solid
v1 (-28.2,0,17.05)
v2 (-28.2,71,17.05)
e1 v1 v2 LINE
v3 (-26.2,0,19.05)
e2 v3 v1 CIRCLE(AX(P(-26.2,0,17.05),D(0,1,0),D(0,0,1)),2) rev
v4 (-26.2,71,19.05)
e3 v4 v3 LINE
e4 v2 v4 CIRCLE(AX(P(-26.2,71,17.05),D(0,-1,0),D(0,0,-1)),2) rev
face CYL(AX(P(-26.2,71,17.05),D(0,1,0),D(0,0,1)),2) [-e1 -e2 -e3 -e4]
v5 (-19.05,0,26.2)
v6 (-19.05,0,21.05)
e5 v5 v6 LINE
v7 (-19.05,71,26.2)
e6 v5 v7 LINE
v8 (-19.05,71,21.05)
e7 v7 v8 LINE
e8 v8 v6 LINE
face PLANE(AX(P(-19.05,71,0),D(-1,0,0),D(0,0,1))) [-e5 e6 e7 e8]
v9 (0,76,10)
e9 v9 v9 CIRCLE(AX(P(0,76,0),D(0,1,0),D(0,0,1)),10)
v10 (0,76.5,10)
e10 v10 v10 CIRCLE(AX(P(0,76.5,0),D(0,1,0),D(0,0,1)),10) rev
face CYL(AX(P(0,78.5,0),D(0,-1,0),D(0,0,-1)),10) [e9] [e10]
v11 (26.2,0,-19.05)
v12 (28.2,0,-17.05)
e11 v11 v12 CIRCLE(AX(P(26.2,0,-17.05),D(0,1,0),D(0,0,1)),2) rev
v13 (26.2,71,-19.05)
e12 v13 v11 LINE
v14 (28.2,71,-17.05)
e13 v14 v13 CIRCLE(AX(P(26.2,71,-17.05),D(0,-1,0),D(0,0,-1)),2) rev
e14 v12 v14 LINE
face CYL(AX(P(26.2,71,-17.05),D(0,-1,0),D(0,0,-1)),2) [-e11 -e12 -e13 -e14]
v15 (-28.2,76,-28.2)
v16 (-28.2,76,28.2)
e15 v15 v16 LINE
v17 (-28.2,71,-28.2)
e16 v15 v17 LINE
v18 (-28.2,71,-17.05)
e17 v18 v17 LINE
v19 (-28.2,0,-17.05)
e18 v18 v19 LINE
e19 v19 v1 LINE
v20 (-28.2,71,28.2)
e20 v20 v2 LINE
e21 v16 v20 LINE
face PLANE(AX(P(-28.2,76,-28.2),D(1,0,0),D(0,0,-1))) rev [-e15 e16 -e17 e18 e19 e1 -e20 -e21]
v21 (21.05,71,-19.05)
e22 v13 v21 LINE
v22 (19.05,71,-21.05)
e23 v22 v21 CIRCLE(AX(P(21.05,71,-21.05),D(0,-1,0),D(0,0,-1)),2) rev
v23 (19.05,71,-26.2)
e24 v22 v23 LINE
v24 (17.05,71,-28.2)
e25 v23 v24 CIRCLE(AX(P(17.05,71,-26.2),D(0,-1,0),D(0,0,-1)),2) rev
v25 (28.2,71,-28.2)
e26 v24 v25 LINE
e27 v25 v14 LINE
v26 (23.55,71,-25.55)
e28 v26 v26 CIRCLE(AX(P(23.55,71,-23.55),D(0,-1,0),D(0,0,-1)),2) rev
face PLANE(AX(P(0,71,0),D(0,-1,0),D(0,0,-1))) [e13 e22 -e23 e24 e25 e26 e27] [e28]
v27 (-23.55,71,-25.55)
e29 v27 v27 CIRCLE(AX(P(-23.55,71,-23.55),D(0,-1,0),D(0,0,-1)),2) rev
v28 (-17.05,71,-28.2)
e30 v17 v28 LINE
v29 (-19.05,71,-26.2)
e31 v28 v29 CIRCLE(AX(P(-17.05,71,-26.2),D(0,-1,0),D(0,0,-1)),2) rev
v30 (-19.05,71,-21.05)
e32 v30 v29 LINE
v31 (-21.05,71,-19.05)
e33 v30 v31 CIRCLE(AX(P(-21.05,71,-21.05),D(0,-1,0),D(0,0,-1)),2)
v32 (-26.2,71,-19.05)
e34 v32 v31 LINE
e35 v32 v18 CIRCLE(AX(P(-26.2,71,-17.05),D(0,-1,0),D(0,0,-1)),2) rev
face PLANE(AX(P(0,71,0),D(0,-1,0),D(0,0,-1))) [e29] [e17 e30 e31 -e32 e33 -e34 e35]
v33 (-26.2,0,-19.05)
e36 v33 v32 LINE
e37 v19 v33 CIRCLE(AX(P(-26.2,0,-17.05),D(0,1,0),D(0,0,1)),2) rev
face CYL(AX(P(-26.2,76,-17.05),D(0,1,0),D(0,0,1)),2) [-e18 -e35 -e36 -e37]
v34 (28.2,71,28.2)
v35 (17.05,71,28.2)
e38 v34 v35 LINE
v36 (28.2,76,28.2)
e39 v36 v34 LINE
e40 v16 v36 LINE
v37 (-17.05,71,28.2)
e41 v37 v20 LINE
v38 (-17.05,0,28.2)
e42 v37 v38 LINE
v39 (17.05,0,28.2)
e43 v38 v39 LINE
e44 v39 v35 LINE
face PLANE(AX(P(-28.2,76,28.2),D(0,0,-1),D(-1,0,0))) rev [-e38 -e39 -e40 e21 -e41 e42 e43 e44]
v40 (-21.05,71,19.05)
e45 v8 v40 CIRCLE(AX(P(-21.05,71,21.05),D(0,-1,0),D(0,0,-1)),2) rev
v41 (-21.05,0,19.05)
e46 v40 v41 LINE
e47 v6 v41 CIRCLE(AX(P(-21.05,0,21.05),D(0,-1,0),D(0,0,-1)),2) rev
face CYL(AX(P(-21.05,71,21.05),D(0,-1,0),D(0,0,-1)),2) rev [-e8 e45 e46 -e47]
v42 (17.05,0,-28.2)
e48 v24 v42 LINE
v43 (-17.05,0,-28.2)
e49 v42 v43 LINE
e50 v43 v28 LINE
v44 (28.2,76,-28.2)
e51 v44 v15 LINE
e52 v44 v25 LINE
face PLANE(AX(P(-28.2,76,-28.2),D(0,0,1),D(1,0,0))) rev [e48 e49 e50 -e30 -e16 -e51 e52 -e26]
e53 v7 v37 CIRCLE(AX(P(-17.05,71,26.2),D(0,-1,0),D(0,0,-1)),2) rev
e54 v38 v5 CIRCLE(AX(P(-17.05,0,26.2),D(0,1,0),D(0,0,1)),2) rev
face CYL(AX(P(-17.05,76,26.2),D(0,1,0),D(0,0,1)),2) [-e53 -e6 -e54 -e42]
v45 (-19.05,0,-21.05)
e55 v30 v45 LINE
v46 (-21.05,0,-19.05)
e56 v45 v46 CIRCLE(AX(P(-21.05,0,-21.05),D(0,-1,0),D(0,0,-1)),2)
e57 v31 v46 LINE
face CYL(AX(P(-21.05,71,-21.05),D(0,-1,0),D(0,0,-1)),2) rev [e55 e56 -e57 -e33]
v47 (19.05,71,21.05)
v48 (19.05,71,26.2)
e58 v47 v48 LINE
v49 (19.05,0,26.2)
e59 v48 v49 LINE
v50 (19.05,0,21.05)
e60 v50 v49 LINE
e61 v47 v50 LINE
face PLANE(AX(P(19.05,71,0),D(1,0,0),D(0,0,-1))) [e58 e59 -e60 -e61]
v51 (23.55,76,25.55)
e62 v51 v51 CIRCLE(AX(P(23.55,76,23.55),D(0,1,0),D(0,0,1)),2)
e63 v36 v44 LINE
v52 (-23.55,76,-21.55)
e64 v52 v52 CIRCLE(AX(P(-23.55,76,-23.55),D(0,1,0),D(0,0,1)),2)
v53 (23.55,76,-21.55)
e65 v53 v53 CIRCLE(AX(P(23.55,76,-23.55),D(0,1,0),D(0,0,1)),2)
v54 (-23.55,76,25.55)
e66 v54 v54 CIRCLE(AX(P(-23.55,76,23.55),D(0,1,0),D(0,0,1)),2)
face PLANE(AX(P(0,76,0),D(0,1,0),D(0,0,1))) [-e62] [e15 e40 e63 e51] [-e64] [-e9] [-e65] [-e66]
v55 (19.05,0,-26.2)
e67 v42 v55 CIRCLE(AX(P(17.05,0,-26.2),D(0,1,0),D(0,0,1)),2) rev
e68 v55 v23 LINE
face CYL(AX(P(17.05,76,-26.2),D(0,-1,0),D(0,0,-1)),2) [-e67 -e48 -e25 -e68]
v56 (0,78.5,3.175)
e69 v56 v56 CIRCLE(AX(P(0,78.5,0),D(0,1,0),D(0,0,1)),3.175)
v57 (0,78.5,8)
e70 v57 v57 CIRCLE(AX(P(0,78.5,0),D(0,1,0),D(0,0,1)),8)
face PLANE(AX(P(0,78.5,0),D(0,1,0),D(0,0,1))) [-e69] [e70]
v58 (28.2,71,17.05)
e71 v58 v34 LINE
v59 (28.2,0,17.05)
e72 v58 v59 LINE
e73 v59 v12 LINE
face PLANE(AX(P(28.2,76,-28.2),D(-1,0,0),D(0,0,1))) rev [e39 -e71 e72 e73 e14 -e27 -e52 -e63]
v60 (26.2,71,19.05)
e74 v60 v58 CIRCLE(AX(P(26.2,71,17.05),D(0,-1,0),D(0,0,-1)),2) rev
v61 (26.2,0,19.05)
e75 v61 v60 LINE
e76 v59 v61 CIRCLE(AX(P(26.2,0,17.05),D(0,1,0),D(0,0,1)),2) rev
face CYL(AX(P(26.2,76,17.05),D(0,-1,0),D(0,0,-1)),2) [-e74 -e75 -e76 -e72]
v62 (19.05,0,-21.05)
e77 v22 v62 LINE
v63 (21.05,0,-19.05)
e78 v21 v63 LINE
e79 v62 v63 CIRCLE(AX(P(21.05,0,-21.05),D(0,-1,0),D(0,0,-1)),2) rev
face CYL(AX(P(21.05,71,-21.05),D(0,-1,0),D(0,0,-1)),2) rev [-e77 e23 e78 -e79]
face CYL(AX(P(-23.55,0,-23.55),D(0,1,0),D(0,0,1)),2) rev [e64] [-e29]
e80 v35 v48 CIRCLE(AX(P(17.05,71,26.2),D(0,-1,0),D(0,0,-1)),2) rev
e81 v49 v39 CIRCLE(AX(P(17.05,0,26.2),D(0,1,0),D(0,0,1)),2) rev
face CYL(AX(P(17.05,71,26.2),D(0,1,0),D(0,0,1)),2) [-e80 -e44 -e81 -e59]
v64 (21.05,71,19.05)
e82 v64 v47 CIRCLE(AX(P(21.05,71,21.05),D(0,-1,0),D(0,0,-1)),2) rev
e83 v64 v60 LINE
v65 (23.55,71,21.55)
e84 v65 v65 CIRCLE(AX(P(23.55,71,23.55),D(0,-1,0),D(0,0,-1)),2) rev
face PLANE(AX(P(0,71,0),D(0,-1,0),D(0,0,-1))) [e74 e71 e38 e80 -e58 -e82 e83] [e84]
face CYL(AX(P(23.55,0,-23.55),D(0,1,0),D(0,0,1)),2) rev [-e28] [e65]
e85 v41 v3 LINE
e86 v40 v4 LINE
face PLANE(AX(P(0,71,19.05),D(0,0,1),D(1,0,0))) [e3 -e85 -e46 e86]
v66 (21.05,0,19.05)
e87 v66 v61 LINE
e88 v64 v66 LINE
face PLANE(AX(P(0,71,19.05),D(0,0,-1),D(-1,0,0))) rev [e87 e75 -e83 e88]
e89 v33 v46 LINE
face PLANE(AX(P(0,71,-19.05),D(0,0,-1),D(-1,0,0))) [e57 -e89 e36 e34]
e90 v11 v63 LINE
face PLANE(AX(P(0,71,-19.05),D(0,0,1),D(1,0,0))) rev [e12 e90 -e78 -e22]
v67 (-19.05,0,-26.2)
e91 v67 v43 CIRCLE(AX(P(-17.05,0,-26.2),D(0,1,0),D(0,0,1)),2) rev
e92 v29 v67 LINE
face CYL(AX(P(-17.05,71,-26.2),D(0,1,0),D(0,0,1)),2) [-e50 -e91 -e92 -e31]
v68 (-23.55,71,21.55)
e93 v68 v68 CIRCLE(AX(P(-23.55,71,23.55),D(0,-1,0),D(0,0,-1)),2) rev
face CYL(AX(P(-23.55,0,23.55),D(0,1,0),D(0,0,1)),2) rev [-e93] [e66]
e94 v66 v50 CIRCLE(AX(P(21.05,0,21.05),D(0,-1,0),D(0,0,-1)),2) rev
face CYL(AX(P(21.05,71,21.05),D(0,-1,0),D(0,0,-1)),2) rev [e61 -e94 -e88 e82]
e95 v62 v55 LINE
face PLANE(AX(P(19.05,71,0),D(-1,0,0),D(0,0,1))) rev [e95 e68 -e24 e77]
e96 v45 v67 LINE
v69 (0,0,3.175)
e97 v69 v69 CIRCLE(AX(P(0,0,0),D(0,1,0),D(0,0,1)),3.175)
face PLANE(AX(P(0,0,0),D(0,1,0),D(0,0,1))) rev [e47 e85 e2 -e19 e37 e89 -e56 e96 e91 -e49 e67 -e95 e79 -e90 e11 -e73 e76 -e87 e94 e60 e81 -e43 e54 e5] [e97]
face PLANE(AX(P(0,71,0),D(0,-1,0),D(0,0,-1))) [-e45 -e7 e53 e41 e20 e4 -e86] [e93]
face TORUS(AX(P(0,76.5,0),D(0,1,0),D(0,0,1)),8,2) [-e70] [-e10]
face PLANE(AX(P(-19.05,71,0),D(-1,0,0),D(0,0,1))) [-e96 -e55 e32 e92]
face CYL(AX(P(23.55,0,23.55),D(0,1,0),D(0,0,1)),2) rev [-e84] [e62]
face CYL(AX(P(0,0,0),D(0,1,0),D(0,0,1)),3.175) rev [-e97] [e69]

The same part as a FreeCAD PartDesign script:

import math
import FreeCAD as App
import Part
import Sketcher


def edges_at(feature, points):
    """Names of the edges that pass closest to the given points."""
    edges = feature.Shape.Edges
    near = lambda p: min(range(len(edges)), key=lambda i: edges[i].distToShape(Part.Vertex(*p))[0])
    return sorted({f"Edge{near(p) + 1}" for p in points})


def add_polygon(sketch, points):
    """Adds a closed chain of lines whose ends are joined by coincident constraints."""
    first, n = sketch.GeometryCount, len(points)
    for a, b in zip(points, points[1:] + points[:1]):
        sketch.addGeometry(Part.LineSegment(App.Vector(*a, 0), App.Vector(*b, 0)), False)
    for i in range(n):
        sketch.addConstraint(Sketcher.Constraint("Coincident", first + i, 2, first + (i + 1) % n, 1))

doc = App.newDocument("Part")
body = doc.addObject("PartDesign::Body", "Body")

sketch1 = body.newObject("Sketcher::SketchObject", "Sketch")
sketch1.AttachmentSupport = (doc.getObject("XZ_Plane"), [""])
sketch1.MapMode = "FlatFace"
add_polygon(sketch1, [(-28.2, -28.2), (-28.2, 28.2), (28.2, 28.2), (28.2, -28.2)])
sketch1.addConstraint(Sketcher.Constraint("Vertical", 0))
sketch1.addConstraint(Sketcher.Constraint("Horizontal", 1))
sketch1.addConstraint(Sketcher.Constraint("Vertical", 2))
sketch1.addConstraint(Sketcher.Constraint("Horizontal", 3))
sketch1.addConstraint(Sketcher.Constraint("Symmetric", 0, 2, 2, 2, -1, 1))
sketch1.addConstraint(Sketcher.Constraint("Equal", 3, 0))
sketch1.addConstraint(Sketcher.Constraint("DistanceX", 1, 1, 1, 2, 56.4))
pad1 = body.newObject("PartDesign::Pad", "Pad")
pad1.Profile = sketch1
pad1.Length = 76
pad1.Reversed = True

sketch2 = body.newObject("Sketcher::SketchObject", "Sketch001")
sketch2.AttachmentSupport = (doc.getObject("XZ_Plane"), [""])
sketch2.MapMode = "FlatFace"
sketch2.AttachmentOffset = App.Placement(App.Vector(0, 0, -76), App.Rotation())
sketch2.addGeometry(Part.ArcOfCircle(Part.Circle(App.Vector(-23.55, -23.55, 0), App.Vector(0, 0, 1), 2), math.radians(90), math.radians(360)), False)
sketch2.addGeometry(Part.ArcOfCircle(Part.Circle(App.Vector(-23.55, -23.55, 0), App.Vector(0, 0, 1), 2), math.radians(0), math.radians(90)), False)
sketch2.addGeometry(Part.ArcOfCircle(Part.Circle(App.Vector(23.55, -23.55, 0), App.Vector(0, 0, 1), 2), math.radians(180), math.radians(360)), False)
sketch2.addGeometry(Part.ArcOfCircle(Part.Circle(App.Vector(23.55, -23.55, 0), App.Vector(0, 0, 1), 2), math.radians(90), math.radians(180)), False)
sketch2.addGeometry(Part.ArcOfCircle(Part.Circle(App.Vector(23.55, -23.55, 0), App.Vector(0, 0, 1), 2), math.radians(0), math.radians(90)), False)
sketch2.addGeometry(Part.Circle(App.Vector(0, 0, 0), App.Vector(0, 0, 1), 3.175), False)
sketch2.addGeometry(Part.ArcOfCircle(Part.Circle(App.Vector(-23.55, 23.55, 0), App.Vector(0, 0, 1), 2), math.radians(-90), math.radians(0)), False)
sketch2.addGeometry(Part.ArcOfCircle(Part.Circle(App.Vector(-23.55, 23.55, 0), App.Vector(0, 0, 1), 2), math.radians(0), math.radians(270)), False)
sketch2.addGeometry(Part.ArcOfCircle(Part.Circle(App.Vector(23.55, 23.55, 0), App.Vector(0, 0, 1), 2), math.radians(-90), math.radians(0)), False)
sketch2.addGeometry(Part.ArcOfCircle(Part.Circle(App.Vector(23.55, 23.55, 0), App.Vector(0, 0, 1), 2), math.radians(-180), math.radians(-90)), False)
sketch2.addGeometry(Part.ArcOfCircle(Part.Circle(App.Vector(23.55, 23.55, 0), App.Vector(0, 0, 1), 2), math.radians(0), math.radians(180)), False)
sketch2.addConstraint(Sketcher.Constraint("Tangent", 0, 1, 1, 2))
sketch2.addConstraint(Sketcher.Constraint("Coincident", 1, 1, 0, 2))
sketch2.addConstraint(Sketcher.Constraint("Tangent", 2, 1, 3, 2))
sketch2.addConstraint(Sketcher.Constraint("Tangent", 3, 1, 4, 2))
sketch2.addConstraint(Sketcher.Constraint("Tangent", 4, 1, 2, 2))
sketch2.addConstraint(Sketcher.Constraint("Tangent", 6, 1, 7, 2))
sketch2.addConstraint(Sketcher.Constraint("Coincident", 7, 1, 6, 2))
sketch2.addConstraint(Sketcher.Constraint("Tangent", 8, 1, 9, 2))
sketch2.addConstraint(Sketcher.Constraint("Tangent", 9, 1, 10, 2))
sketch2.addConstraint(Sketcher.Constraint("Tangent", 10, 1, 8, 2))
sketch2.addConstraint(Sketcher.Constraint("Coincident", 5, 3, -1, 1))
sketch2.addConstraint(Sketcher.Constraint("Equal", 1, 2))
sketch2.addConstraint(Sketcher.Constraint("Equal", 4, 6))
sketch2.addConstraint(Sketcher.Constraint("Equal", 7, 8))
sketch2.addConstraint(Sketcher.Constraint("Symmetric", 2, 3, 6, 3, -1, 1))
sketch2.addConstraint(Sketcher.Constraint("Symmetric", 0, 3, 8, 3, -1, 1))
sketch2.addConstraint(Sketcher.Constraint("Symmetric", 0, 3, 2, 3, -2))
sketch2.addConstraint(Sketcher.Constraint("Horizontal", 4, 3, 1, 1))
sketch2.addConstraint(Sketcher.Constraint("Horizontal", 1, 1, 2, 1))
sketch2.addConstraint(Sketcher.Constraint("Horizontal", 2, 1, 4, 1))
sketch2.addConstraint(Sketcher.Constraint("Horizontal", 10, 3, 7, 1))
sketch2.addConstraint(Sketcher.Constraint("Horizontal", 7, 1, 9, 1))
sketch2.addConstraint(Sketcher.Constraint("Horizontal", 9, 1, 10, 1))
sketch2.addConstraint(Sketcher.Constraint("Vertical", 7, 3, 0, 1))
sketch2.addConstraint(Sketcher.Constraint("Vertical", 10, 3, 3, 1))
sketch2.addConstraint(Sketcher.Constraint("Vertical", 0, 1, 6, 1))
sketch2.addConstraint(Sketcher.Constraint("Vertical", 3, 1, 8, 1))
sketch2.addConstraint(Sketcher.Constraint("Radius", 0, 2.0))
sketch2.addConstraint(Sketcher.Constraint("Diameter", 5, 6.35))
sketch2.addConstraint(Sketcher.Constraint("DistanceX", 0, 3, 2, 3, 47.1))
sketch2.addConstraint(Sketcher.Constraint("DistanceY", 0, 3, 6, 3, 47.1))
pocket1 = body.newObject("PartDesign::Pocket", "Pocket")
pocket1.Profile = sketch2
pocket1.Length = 76
pocket1.Reversed = True

sketch3 = body.newObject("Sketcher::SketchObject", "Sketch002")
sketch3.AttachmentSupport = (doc.getObject("XZ_Plane"), [""])
sketch3.MapMode = "FlatFace"
sketch3.AttachmentOffset = App.Placement(App.Vector(0, 0, -71), App.Rotation())
sketch3.addGeometry(Part.LineSegment(App.Vector(-19.05, -28.2, 0), App.Vector(-19.05, -21.05, 0)), False)
sketch3.addGeometry(Part.ArcOfCircle(Part.Circle(App.Vector(-21.05, -21.05, 0), App.Vector(0, 0, 1), 2), math.radians(0), math.radians(90)), False)
sketch3.addGeometry(Part.LineSegment(App.Vector(-21.05, -19.05, 0), App.Vector(-28.2, -19.05, 0)), False)
sketch3.addGeometry(Part.LineSegment(App.Vector(-28.2, -19.05, 0), App.Vector(-28.2, -28.2, 0)), False)
sketch3.addGeometry(Part.LineSegment(App.Vector(-28.2, -28.2, 0), App.Vector(-19.05, -28.2, 0)), False)
sketch3.addGeometry(Part.Circle(App.Vector(-23.55, -23.55, 0), App.Vector(0, 0, 1), 2), False)
sketch3.addGeometry(Part.LineSegment(App.Vector(19.05, -21.05, 0), App.Vector(19.05, -28.2, 0)), False)
sketch3.addGeometry(Part.LineSegment(App.Vector(19.05, -28.2, 0), App.Vector(28.2, -28.2, 0)), False)
sketch3.addGeometry(Part.LineSegment(App.Vector(28.2, -28.2, 0), App.Vector(28.2, -19.05, 0)), False)
sketch3.addGeometry(Part.LineSegment(App.Vector(28.2, -19.05, 0), App.Vector(21.05, -19.05, 0)), False)
sketch3.addGeometry(Part.ArcOfCircle(Part.Circle(App.Vector(21.05, -21.05, 0), App.Vector(0, 0, 1), 2), math.radians(90), math.radians(180)), False)
sketch3.addGeometry(Part.Circle(App.Vector(23.55, -23.55, 0), App.Vector(0, 0, 1), 2), False)
sketch3.addGeometry(Part.LineSegment(App.Vector(-28.2, 28.2, 0), App.Vector(-28.2, 19.05, 0)), False)
sketch3.addGeometry(Part.LineSegment(App.Vector(-28.2, 19.05, 0), App.Vector(-21.05, 19.05, 0)), False)
sketch3.addGeometry(Part.ArcOfCircle(Part.Circle(App.Vector(-21.05, 21.05, 0), App.Vector(0, 0, 1), 2), math.radians(-90), math.radians(0)), False)
sketch3.addGeometry(Part.LineSegment(App.Vector(-19.05, 21.05, 0), App.Vector(-19.05, 28.2, 0)), False)
sketch3.addGeometry(Part.LineSegment(App.Vector(-19.05, 28.2, 0), App.Vector(-28.2, 28.2, 0)), False)
sketch3.addGeometry(Part.Circle(App.Vector(-23.55, 23.55, 0), App.Vector(0, 0, 1), 2), False)
sketch3.addGeometry(Part.LineSegment(App.Vector(21.05, 19.05, 0), App.Vector(28.2, 19.05, 0)), False)
sketch3.addGeometry(Part.LineSegment(App.Vector(28.2, 19.05, 0), App.Vector(28.2, 28.2, 0)), False)
sketch3.addGeometry(Part.LineSegment(App.Vector(28.2, 28.2, 0), App.Vector(19.05, 28.2, 0)), False)
sketch3.addGeometry(Part.LineSegment(App.Vector(19.05, 28.2, 0), App.Vector(19.05, 21.05, 0)), False)
sketch3.addGeometry(Part.ArcOfCircle(Part.Circle(App.Vector(21.05, 21.05, 0), App.Vector(0, 0, 1), 2), math.radians(-180), math.radians(-90)), False)
sketch3.addGeometry(Part.Circle(App.Vector(23.55, 23.55, 0), App.Vector(0, 0, 1), 2), False)
sketch3.addConstraint(Sketcher.Constraint("Tangent", 0, 2, 1, 1))
sketch3.addConstraint(Sketcher.Constraint("Tangent", 1, 2, 2, 1))
sketch3.addConstraint(Sketcher.Constraint("Coincident", 2, 2, 3, 1))
sketch3.addConstraint(Sketcher.Constraint("Coincident", 3, 2, 4, 1))
sketch3.addConstraint(Sketcher.Constraint("Coincident", 4, 2, 0, 1))
sketch3.addConstraint(Sketcher.Constraint("Coincident", 6, 2, 7, 1))
sketch3.addConstraint(Sketcher.Constraint("Coincident", 7, 2, 8, 1))
sketch3.addConstraint(Sketcher.Constraint("Coincident", 8, 2, 9, 1))
sketch3.addConstraint(Sketcher.Constraint("Tangent", 9, 2, 10, 1))
sketch3.addConstraint(Sketcher.Constraint("Tangent", 10, 2, 6, 1))
sketch3.addConstraint(Sketcher.Constraint("Coincident", 12, 2, 13, 1))
sketch3.addConstraint(Sketcher.Constraint("Tangent", 13, 2, 14, 1))
sketch3.addConstraint(Sketcher.Constraint("Tangent", 14, 2, 15, 1))
sketch3.addConstraint(Sketcher.Constraint("Coincident", 15, 2, 16, 1))
sketch3.addConstraint(Sketcher.Constraint("Coincident", 16, 2, 12, 1))
sketch3.addConstraint(Sketcher.Constraint("Coincident", 18, 2, 19, 1))
sketch3.addConstraint(Sketcher.Constraint("Coincident", 19, 2, 20, 1))
sketch3.addConstraint(Sketcher.Constraint("Coincident", 20, 2, 21, 1))
sketch3.addConstraint(Sketcher.Constraint("Tangent", 21, 2, 22, 1))
sketch3.addConstraint(Sketcher.Constraint("Tangent", 22, 2, 18, 1))
sketch3.addConstraint(Sketcher.Constraint("Vertical", 0))
sketch3.addConstraint(Sketcher.Constraint("Horizontal", 2))
sketch3.addConstraint(Sketcher.Constraint("Vertical", 3))
sketch3.addConstraint(Sketcher.Constraint("Horizontal", 4))
sketch3.addConstraint(Sketcher.Constraint("Vertical", 6))
sketch3.addConstraint(Sketcher.Constraint("Horizontal", 7))
sketch3.addConstraint(Sketcher.Constraint("Vertical", 8))
sketch3.addConstraint(Sketcher.Constraint("Horizontal", 9))
sketch3.addConstraint(Sketcher.Constraint("Vertical", 12))
sketch3.addConstraint(Sketcher.Constraint("Horizontal", 13))
sketch3.addConstraint(Sketcher.Constraint("Vertical", 15))
sketch3.addConstraint(Sketcher.Constraint("Horizontal", 16))
sketch3.addConstraint(Sketcher.Constraint("Horizontal", 18))
sketch3.addConstraint(Sketcher.Constraint("Vertical", 19))
sketch3.addConstraint(Sketcher.Constraint("Horizontal", 20))
sketch3.addConstraint(Sketcher.Constraint("Vertical", 21))
sketch3.addConstraint(Sketcher.Constraint("Equal", 1, 5))
sketch3.addConstraint(Sketcher.Constraint("Equal", 5, 10))
sketch3.addConstraint(Sketcher.Constraint("Equal", 10, 11))
sketch3.addConstraint(Sketcher.Constraint("Equal", 11, 14))
sketch3.addConstraint(Sketcher.Constraint("Equal", 14, 17))
sketch3.addConstraint(Sketcher.Constraint("Equal", 17, 22))
sketch3.addConstraint(Sketcher.Constraint("Equal", 22, 23))
sketch3.addConstraint(Sketcher.Constraint("Symmetric", 10, 3, 14, 3, -1, 1))
sketch3.addConstraint(Sketcher.Constraint("Symmetric", 11, 3, 17, 3, -1, 1))
sketch3.addConstraint(Sketcher.Constraint("Symmetric", 1, 3, 22, 3, -1, 1))
sketch3.addConstraint(Sketcher.Constraint("Symmetric", 5, 3, 23, 3, -1, 1))
sketch3.addConstraint(Sketcher.Constraint("Symmetric", 7, 2, 16, 2, -1, 1))
sketch3.addConstraint(Sketcher.Constraint("Symmetric", 3, 2, 19, 2, -1, 1))
sketch3.addConstraint(Sketcher.Constraint("Symmetric", 1, 3, 10, 3, -2))
sketch3.addConstraint(Sketcher.Constraint("Symmetric", 5, 3, 11, 3, -2))
sketch3.addConstraint(Sketcher.Constraint("Symmetric", 3, 2, 7, 2, -2))
sketch3.addConstraint(Sketcher.Constraint("Equal", 18, 0))
sketch3.addConstraint(Sketcher.Constraint("Diameter", 5, 4.0))
sketch3.addConstraint(Sketcher.Constraint("DistanceX", 2, 2, 2, 1, 7.15))
sketch3.addConstraint(Sketcher.Constraint("DistanceX", 2, 2, -1, 1, 28.2))
sketch3.addConstraint(Sketcher.Constraint("DistanceY", 3, 2, -1, 1, 28.2))
sketch3.addConstraint(Sketcher.Constraint("DistanceX", 5, 3, 1, 3, 2.5))
sketch3.addConstraint(Sketcher.Constraint("DistanceY", 5, 3, 1, 3, 2.5))
pocket2 = body.newObject("PartDesign::Pocket", "Pocket001")
pocket2.Profile = sketch3
pocket2.Length = 71
pocket2.Reversed = True
doc.recompute()

fillet = body.newObject("PartDesign::Fillet", "Fillet")
fillet.Base = (pocket2, edges_at(pocket2, [
    (-19.05, 35.5, -28.2),
    (-28.2, 35.5, -19.05),
    (28.2, 35.5, -19.05),
    (19.05, 35.5, -28.2),
    (19.05, 35.5, 28.2),
    (28.2, 35.5, 19.05),
    (-28.2, 35.5, 19.05),
    (-19.05, 35.5, 28.2),
]))
fillet.Radius = 2

sketch4 = body.newObject("Sketcher::SketchObject", "Sketch003")
sketch4.AttachmentSupport = (doc.getObject("XZ_Plane"), [""])
sketch4.MapMode = "FlatFace"
sketch4.AttachmentOffset = App.Placement(App.Vector(0, 0, -78.5), App.Rotation())
sketch4.addGeometry(Part.Circle(App.Vector(0, 0, 0), App.Vector(0, 0, 1), 10), False)
sketch4.addGeometry(Part.Circle(App.Vector(0, 0, 0), App.Vector(0, 0, 1), 3.175), False)
sketch4.addConstraint(Sketcher.Constraint("Coincident", 0, 3, -1, 1))
sketch4.addConstraint(Sketcher.Constraint("Coincident", 1, 3, -1, 1))
sketch4.addConstraint(Sketcher.Constraint("Diameter", 0, 20.0))
sketch4.addConstraint(Sketcher.Constraint("Diameter", 1, 6.35))
pad2 = body.newObject("PartDesign::Pad", "Pad001")
pad2.Profile = sketch4
pad2.Length = 2.5
doc.recompute()

fillet2 = body.newObject("PartDesign::Fillet", "Fillet001")
fillet2.Base = (pad2, edges_at(pad2, [(0, 78.5, -10)]))
fillet2.Radius = 2

doc.recompute()
